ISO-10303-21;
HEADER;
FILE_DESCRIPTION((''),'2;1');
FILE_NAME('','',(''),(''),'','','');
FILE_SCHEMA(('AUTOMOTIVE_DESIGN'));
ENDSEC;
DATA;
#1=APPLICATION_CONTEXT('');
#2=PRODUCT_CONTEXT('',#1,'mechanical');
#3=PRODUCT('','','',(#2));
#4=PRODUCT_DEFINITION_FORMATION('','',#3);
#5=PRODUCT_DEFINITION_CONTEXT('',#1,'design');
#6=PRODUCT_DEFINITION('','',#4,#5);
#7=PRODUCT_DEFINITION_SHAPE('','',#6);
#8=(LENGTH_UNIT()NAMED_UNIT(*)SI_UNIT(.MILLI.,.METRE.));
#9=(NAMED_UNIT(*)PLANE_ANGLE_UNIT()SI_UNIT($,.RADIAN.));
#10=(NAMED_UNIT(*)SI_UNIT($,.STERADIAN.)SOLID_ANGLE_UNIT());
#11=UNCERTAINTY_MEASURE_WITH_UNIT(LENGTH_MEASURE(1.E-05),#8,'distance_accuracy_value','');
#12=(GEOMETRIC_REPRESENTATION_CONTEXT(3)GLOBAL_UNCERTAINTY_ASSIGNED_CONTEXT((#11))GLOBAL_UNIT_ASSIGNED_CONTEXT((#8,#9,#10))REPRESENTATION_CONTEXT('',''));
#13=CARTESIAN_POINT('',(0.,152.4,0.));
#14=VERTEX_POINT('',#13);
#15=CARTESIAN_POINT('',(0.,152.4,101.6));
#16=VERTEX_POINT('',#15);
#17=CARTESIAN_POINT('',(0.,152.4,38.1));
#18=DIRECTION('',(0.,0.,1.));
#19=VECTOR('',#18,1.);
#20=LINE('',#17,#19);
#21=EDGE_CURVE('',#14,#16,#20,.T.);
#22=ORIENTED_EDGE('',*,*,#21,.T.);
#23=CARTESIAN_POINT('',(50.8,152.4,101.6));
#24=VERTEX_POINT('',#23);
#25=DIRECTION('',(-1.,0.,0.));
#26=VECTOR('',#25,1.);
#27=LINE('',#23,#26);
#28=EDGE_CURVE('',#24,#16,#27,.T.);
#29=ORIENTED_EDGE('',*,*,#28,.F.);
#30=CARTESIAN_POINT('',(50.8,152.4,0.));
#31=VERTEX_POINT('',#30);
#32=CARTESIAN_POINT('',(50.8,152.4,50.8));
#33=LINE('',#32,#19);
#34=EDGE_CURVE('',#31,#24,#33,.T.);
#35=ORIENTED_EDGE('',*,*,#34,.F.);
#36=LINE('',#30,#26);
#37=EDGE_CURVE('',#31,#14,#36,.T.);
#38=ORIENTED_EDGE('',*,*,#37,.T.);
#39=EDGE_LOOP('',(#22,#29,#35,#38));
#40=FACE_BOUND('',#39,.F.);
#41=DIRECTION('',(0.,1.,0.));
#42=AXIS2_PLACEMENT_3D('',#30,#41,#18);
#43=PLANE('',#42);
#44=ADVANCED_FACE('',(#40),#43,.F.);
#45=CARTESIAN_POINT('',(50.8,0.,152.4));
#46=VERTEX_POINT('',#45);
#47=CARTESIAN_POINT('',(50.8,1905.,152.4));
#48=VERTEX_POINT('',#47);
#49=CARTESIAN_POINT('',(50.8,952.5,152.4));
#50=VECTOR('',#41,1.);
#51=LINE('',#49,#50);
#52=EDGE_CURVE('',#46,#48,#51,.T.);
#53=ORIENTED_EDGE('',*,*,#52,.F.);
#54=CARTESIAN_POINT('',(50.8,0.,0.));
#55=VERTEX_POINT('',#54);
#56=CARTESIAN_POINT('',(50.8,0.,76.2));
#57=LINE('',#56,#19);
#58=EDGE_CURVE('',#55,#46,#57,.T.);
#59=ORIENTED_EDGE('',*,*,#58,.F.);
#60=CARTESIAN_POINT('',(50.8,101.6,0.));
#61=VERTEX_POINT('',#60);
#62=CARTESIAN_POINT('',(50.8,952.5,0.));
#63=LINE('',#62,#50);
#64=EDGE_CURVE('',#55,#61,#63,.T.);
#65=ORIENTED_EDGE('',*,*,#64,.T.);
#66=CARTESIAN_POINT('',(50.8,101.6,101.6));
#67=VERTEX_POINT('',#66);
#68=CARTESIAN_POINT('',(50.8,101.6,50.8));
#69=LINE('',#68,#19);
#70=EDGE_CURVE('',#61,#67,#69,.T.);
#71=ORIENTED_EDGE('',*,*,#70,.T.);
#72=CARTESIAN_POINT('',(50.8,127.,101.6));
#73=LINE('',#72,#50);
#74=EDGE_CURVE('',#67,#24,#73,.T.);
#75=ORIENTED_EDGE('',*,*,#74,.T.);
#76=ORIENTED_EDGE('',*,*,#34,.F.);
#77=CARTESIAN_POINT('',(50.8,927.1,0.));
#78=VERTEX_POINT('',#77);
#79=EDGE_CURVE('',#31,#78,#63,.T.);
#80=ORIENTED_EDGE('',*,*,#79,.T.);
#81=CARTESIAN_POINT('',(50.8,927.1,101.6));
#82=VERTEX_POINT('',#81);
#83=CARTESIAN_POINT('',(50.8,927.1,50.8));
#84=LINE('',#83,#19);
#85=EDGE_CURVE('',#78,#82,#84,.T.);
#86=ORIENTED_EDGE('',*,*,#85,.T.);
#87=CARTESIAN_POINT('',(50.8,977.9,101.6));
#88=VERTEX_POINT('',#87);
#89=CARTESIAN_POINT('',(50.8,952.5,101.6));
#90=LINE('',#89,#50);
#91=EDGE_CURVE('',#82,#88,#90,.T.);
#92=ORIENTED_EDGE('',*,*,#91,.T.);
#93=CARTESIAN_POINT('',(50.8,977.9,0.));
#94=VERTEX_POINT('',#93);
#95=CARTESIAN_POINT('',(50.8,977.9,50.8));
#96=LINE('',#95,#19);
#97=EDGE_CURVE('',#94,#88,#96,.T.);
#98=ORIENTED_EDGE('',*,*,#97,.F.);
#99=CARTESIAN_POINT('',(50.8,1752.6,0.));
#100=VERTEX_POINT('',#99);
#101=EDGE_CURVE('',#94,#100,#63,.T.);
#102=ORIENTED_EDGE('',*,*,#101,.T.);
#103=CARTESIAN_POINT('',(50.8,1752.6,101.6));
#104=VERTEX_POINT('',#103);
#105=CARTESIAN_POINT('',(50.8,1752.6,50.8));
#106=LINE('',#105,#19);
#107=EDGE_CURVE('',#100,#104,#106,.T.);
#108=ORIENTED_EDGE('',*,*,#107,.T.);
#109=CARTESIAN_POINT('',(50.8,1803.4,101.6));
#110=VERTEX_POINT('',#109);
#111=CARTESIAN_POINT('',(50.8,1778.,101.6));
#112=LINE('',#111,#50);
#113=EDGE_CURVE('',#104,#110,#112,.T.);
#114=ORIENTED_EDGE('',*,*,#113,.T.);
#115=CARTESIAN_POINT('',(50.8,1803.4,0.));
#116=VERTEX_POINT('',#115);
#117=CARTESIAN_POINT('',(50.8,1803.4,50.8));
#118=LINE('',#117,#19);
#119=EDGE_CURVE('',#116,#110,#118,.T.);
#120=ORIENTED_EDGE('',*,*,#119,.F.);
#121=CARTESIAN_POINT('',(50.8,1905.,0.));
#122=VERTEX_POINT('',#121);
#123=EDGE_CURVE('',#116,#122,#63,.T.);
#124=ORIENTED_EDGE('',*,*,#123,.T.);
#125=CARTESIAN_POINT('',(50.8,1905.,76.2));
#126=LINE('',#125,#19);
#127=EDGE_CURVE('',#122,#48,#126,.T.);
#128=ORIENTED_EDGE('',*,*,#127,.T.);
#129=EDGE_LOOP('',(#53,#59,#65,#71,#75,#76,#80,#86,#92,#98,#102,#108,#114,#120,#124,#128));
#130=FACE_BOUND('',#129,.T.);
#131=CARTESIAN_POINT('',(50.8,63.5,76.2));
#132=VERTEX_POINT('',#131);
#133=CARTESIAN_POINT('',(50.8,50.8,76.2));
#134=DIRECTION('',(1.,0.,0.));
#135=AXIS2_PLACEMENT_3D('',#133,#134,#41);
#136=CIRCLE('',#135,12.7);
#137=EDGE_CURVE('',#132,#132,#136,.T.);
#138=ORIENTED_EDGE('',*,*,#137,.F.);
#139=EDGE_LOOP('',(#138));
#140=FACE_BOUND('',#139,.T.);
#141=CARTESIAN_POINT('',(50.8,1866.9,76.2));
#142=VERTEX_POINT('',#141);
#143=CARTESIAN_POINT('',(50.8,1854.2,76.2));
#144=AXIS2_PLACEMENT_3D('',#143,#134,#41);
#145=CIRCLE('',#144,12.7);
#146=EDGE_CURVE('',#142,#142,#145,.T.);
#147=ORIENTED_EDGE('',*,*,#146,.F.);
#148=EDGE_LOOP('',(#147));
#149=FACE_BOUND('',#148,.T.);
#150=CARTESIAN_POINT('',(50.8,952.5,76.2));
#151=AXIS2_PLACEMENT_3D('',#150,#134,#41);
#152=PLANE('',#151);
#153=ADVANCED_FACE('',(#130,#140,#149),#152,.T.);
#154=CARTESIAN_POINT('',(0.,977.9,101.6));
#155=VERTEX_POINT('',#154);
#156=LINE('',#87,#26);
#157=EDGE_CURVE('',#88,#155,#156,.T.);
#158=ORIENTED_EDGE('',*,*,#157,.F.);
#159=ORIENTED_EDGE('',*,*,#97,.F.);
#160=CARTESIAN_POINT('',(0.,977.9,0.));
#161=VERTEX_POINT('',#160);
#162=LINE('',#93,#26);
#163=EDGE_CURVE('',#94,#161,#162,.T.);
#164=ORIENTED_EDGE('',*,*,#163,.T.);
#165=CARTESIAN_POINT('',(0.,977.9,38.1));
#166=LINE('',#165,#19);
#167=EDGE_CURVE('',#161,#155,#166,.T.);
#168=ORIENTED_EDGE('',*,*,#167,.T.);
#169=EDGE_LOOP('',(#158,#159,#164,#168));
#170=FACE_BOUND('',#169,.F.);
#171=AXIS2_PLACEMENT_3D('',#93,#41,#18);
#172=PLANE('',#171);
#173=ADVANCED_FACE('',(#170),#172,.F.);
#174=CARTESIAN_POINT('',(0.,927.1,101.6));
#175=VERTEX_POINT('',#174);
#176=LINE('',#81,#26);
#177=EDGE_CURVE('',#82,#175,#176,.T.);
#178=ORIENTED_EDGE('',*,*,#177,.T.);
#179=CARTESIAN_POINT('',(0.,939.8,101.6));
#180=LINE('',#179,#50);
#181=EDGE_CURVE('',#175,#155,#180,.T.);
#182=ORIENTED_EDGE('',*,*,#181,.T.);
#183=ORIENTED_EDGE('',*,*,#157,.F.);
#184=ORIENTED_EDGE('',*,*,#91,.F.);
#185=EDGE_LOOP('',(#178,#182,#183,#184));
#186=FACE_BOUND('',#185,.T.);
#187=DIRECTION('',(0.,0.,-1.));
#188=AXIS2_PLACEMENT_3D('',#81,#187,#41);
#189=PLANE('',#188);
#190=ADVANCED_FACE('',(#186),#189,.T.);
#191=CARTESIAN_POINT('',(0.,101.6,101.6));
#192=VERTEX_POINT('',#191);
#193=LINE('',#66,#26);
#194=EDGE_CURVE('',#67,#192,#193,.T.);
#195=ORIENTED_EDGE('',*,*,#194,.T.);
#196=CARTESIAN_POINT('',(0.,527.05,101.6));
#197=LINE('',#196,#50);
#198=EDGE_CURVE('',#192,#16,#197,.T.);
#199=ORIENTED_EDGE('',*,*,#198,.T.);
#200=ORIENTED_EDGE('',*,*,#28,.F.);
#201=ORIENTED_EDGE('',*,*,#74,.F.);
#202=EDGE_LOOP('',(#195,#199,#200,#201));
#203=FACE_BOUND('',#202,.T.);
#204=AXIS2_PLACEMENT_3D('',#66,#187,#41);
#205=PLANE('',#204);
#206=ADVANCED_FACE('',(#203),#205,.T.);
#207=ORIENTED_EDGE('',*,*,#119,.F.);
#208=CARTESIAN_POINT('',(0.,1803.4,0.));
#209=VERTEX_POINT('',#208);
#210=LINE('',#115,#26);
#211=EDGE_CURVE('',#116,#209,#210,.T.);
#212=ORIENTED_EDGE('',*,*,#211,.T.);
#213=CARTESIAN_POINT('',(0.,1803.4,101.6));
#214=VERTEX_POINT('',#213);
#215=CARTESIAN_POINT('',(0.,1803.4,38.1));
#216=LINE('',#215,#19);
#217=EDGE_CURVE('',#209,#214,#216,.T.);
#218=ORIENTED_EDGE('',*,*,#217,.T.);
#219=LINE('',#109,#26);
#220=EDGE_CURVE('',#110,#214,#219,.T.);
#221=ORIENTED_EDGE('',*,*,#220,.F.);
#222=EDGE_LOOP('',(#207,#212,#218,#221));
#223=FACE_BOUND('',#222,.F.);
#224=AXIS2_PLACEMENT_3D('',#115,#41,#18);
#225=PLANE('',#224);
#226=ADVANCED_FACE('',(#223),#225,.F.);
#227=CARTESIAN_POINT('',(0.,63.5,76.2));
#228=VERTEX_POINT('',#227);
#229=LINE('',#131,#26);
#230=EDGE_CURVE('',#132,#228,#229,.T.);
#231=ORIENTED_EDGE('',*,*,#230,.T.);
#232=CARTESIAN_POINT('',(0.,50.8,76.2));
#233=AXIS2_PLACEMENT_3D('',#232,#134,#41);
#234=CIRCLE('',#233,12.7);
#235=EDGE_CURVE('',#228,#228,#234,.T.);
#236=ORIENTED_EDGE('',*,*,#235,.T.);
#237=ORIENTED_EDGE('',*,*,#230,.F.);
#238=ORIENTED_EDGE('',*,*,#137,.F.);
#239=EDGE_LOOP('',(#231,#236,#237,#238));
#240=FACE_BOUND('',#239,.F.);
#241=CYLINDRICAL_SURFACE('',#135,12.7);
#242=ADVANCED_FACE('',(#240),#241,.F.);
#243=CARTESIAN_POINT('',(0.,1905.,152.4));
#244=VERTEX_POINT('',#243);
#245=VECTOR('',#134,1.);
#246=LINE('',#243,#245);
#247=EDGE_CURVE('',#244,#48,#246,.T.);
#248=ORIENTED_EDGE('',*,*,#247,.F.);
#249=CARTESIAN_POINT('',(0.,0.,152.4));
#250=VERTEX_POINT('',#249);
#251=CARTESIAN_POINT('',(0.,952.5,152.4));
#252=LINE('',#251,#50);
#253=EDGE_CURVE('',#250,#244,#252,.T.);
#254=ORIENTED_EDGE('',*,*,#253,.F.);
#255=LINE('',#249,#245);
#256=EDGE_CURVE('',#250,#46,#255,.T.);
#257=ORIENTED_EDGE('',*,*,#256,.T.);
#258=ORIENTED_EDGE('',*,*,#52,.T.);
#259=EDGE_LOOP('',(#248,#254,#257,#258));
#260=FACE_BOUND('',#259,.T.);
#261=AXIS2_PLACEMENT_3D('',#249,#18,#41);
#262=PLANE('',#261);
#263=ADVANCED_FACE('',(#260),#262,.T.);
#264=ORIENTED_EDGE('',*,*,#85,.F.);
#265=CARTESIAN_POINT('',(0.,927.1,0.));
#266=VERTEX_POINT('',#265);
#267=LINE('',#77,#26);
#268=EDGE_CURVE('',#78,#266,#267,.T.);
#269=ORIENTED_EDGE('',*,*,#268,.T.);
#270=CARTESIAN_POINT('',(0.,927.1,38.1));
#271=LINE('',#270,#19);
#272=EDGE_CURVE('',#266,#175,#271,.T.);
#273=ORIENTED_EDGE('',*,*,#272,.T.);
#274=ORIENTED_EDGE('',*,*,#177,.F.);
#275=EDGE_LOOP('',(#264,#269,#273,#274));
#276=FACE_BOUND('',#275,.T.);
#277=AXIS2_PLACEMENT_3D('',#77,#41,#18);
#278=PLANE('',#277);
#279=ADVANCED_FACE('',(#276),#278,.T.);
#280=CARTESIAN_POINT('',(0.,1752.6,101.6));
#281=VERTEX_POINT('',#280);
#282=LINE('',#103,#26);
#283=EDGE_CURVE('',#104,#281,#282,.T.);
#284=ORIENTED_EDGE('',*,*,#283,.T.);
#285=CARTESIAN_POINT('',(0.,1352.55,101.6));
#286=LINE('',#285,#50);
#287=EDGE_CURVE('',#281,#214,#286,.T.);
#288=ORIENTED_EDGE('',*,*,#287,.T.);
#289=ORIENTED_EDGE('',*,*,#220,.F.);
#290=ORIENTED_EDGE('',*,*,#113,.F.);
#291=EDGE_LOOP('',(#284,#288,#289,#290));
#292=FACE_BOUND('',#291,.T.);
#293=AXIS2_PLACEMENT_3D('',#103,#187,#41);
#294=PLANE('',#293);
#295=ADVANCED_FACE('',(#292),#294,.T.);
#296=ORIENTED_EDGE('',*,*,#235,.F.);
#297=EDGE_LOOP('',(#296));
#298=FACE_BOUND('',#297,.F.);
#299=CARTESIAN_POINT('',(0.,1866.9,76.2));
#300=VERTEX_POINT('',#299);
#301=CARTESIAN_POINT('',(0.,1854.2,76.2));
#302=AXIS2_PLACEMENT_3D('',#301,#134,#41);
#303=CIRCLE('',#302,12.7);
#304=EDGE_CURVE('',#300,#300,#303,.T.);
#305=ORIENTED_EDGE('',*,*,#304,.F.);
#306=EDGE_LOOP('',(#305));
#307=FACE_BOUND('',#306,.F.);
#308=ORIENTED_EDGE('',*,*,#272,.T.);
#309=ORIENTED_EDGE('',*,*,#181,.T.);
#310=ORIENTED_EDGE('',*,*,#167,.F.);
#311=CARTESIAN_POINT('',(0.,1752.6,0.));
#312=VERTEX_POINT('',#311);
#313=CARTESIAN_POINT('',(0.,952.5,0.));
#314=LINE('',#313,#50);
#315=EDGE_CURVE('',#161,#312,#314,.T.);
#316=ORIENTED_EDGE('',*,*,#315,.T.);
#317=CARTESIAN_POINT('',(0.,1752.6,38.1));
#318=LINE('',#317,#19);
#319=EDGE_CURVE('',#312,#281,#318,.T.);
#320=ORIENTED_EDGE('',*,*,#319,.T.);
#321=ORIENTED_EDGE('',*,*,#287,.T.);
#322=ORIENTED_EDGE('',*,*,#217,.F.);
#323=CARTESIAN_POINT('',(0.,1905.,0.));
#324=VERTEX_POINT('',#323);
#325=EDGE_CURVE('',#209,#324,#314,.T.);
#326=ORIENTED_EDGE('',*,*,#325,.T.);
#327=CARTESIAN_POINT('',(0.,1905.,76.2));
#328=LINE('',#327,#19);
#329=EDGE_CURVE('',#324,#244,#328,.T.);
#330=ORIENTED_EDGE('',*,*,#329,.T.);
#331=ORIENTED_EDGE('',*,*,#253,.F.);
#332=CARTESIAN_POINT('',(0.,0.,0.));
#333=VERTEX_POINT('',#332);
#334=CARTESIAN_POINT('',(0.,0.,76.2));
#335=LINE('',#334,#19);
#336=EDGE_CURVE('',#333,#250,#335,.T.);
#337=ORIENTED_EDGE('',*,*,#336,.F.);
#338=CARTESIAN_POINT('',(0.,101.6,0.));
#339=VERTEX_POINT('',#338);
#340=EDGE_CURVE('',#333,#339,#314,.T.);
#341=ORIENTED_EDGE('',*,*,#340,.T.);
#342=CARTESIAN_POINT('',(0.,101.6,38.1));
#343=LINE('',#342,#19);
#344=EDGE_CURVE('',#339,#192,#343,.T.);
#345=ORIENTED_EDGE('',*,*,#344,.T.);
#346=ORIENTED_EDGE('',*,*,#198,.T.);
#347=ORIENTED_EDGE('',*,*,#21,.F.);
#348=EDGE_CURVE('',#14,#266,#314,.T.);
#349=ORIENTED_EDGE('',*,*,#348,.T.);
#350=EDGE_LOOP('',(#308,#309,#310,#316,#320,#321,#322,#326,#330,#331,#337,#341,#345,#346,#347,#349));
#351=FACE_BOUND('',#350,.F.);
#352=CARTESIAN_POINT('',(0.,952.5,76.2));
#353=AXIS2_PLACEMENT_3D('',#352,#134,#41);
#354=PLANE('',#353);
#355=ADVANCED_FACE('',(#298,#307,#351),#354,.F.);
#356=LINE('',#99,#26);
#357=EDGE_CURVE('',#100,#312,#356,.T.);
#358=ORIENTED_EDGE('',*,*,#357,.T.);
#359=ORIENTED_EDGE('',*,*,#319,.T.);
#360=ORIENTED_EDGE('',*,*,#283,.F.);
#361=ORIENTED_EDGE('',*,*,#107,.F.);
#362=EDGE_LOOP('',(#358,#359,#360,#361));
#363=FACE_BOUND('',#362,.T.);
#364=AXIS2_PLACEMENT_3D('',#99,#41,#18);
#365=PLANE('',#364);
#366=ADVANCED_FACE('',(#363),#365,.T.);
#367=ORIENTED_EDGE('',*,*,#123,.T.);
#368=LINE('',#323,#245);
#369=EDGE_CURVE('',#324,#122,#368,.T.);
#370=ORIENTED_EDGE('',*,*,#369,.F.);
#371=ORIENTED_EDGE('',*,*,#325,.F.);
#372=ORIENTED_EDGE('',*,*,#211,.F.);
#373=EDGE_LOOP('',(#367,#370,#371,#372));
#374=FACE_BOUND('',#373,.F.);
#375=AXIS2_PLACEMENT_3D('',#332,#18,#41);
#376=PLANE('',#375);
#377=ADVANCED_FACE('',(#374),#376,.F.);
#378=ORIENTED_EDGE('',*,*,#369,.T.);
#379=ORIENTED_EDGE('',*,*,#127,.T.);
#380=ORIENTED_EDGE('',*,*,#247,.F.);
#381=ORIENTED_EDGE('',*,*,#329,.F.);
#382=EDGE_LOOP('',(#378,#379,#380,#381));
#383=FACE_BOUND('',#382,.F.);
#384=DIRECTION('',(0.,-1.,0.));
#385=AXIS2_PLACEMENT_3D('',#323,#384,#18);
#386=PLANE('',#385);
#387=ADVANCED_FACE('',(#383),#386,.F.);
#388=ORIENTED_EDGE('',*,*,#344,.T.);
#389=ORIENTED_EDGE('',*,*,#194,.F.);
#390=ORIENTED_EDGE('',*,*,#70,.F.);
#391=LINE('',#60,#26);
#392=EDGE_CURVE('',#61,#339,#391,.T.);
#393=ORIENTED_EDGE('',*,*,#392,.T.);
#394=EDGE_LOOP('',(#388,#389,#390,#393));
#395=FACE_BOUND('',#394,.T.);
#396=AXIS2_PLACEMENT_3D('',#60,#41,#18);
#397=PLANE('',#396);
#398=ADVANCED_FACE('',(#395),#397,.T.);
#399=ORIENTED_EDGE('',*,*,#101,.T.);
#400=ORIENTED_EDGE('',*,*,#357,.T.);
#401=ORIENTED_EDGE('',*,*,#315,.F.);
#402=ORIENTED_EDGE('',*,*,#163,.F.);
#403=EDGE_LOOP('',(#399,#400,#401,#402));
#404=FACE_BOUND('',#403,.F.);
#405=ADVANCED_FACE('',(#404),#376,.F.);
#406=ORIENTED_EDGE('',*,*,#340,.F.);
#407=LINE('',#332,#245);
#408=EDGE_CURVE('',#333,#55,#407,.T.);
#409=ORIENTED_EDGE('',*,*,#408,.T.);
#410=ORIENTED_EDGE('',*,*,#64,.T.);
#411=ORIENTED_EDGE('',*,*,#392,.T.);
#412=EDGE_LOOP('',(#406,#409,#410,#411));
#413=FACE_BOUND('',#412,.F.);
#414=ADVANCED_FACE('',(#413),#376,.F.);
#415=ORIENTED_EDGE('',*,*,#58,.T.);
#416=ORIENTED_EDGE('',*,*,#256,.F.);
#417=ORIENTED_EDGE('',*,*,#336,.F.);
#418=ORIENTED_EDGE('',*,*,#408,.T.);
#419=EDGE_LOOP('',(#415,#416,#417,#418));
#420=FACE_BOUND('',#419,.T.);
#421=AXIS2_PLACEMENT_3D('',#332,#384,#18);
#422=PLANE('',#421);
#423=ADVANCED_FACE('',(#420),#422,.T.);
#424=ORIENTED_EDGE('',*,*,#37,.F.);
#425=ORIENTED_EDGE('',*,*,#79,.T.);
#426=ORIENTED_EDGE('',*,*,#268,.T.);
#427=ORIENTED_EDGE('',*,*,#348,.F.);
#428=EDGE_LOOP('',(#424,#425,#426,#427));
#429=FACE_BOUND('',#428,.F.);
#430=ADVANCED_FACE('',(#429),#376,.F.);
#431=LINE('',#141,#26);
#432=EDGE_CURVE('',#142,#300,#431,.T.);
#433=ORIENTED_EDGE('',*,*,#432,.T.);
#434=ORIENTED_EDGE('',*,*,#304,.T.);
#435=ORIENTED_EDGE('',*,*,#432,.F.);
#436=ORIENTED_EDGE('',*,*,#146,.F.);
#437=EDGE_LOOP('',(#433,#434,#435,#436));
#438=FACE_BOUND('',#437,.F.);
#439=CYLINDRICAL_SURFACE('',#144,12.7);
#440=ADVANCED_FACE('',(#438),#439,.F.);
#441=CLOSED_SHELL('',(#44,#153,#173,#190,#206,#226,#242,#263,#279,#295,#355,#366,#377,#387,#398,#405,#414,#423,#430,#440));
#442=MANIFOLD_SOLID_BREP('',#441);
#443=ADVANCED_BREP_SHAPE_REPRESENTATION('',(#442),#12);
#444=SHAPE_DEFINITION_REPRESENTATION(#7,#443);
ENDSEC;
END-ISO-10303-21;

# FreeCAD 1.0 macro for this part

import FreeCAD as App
import Part
import Sketcher
Q = App.Units.Quantity


def add_polygon(sketch, points):
    """Adds a closed chain of lines whose ends are joined by coincident constraints."""
    first, n = sketch.GeometryCount, len(points)
    for a, b in zip(points, points[1:] + points[:1]):
        sketch.addGeometry(Part.LineSegment(App.Vector(*a, 0), App.Vector(*b, 0)), False)
    for i in range(n):
        sketch.addConstraint(Sketcher.Constraint("Coincident", first + i, 2, first + (i + 1) % n, 1))

doc = App.newDocument("Part")
body = doc.addObject("PartDesign::Body", "Body")

# Sketch on YZ plane
sketch1 = body.newObject("Sketcher::SketchObject", "Sketch")
sketch1.AttachmentSupport = (doc.getObject("YZ_Plane"), [""])
sketch1.MapMode = "FlatFace"
add_polygon(sketch1, [(0, 152), (0, 0), (1905, 0), (1905, 152)])  # lines 0-3
sketch1.addConstraint(Sketcher.Constraint("Vertical", 0))
sketch1.addConstraint(Sketcher.Constraint("Horizontal", 1))
sketch1.addConstraint(Sketcher.Constraint("Vertical", 2))
sketch1.addConstraint(Sketcher.Constraint("Horizontal", 3))
sketch1.addConstraint(Sketcher.Constraint("Coincident", 0, 2, -1, 1))
sketch1.addConstraint(Sketcher.Constraint("DistanceX", 1, 1, 1, 2, Q("75 in")))
sketch1.addConstraint(Sketcher.Constraint("DistanceY", 0, 2, 0, 1, Q("6 in")))
pad1 = body.newObject("PartDesign::Pad", "Pad")
pad1.Profile = sketch1
pad1.Length = Q("2 in")

# Sketch on YZ plane
sketch2 = body.newObject("Sketcher::SketchObject", "Sketch001")
sketch2.AttachmentSupport = (doc.getObject("YZ_Plane"), [""])
sketch2.MapMode = "FlatFace"
sketch2.AttachmentOffset = App.Placement(App.Vector(0, 0, 2 * 25.4), App.Rotation())
add_polygon(sketch2, [(102, 102), (102, 0), (152, 0), (152, 102)])  # lines 0-3
add_polygon(sketch2, [(1753, 102), (1753, 0), (1803, 0), (1803, 102)])  # lines 4-7
sketch2.addGeometry(Part.Circle(App.Vector(51, 76, 0), App.Vector(0, 0, 1), 13), False)  # 8
sketch2.addGeometry(Part.Circle(App.Vector(1854, 76, 0), App.Vector(0, 0, 1), 13), False)  # 9
add_polygon(sketch2, [(927, 102), (927, 0), (978, 0), (978, 102)])  # lines 10-13
sketch2.addConstraint(Sketcher.Constraint("Vertical", 0))
sketch2.addConstraint(Sketcher.Constraint("Horizontal", 1))
sketch2.addConstraint(Sketcher.Constraint("Vertical", 2))
sketch2.addConstraint(Sketcher.Constraint("Horizontal", 3))
sketch2.addConstraint(Sketcher.Constraint("Vertical", 4))
sketch2.addConstraint(Sketcher.Constraint("Horizontal", 5))
sketch2.addConstraint(Sketcher.Constraint("Vertical", 6))
sketch2.addConstraint(Sketcher.Constraint("Horizontal", 7))
sketch2.addConstraint(Sketcher.Constraint("Vertical", 10))
sketch2.addConstraint(Sketcher.Constraint("Horizontal", 11))
sketch2.addConstraint(Sketcher.Constraint("Vertical", 12))
sketch2.addConstraint(Sketcher.Constraint("Horizontal", 13))
sketch2.addConstraint(Sketcher.Constraint("Equal", 8, 9))
sketch2.addConstraint(Sketcher.Constraint("PointOnObject", 0, 2, -1))
sketch2.addConstraint(Sketcher.Constraint("PointOnObject", 4, 2, -1))
sketch2.addConstraint(Sketcher.Constraint("PointOnObject", 10, 2, -1))
sketch2.addConstraint(Sketcher.Constraint("Horizontal", 8, 3, 9, 3))
sketch2.addConstraint(Sketcher.Constraint("Horizontal", 3, 2, 6, 2))
sketch2.addConstraint(Sketcher.Constraint("Horizontal", 7, 2, 12, 2))
sketch2.addConstraint(Sketcher.Constraint("Equal", 3, 5))
sketch2.addConstraint(Sketcher.Constraint("Equal", 7, 11))
sketch2.addConstraint(Sketcher.Constraint("Diameter", 8, Q("1 in")))
sketch2.addConstraint(Sketcher.Constraint("DistanceX", 1, 1, 1, 2, Q("2 in")))
sketch2.addConstraint(Sketcher.Constraint("DistanceY", 0, 2, 0, 1, Q("4 in")))
sketch2.addConstraint(Sketcher.Constraint("DistanceX", -1, 1, 8, 3, Q("2 in")))
sketch2.addConstraint(Sketcher.Constraint("DistanceY", -1, 1, 8, 3, Q("3 in")))
sketch2.addConstraint(Sketcher.Constraint("DistanceX", -1, 1, 9, 3, Q("73 in")))
sketch2.addConstraint(Sketcher.Constraint("DistanceX", -1, 1, 0, 2, Q("4 in")))
sketch2.addConstraint(Sketcher.Constraint("DistanceX", -1, 1, 4, 2, Q("69 in")))
sketch2.addConstraint(Sketcher.Constraint("DistanceX", -1, 1, 10, 2, Q("36.5 in")))
pocket1 = body.newObject("PartDesign::Pocket", "Pocket")
pocket1.Profile = sketch2
pocket1.Type = "ThroughAll"

doc.recompute()
